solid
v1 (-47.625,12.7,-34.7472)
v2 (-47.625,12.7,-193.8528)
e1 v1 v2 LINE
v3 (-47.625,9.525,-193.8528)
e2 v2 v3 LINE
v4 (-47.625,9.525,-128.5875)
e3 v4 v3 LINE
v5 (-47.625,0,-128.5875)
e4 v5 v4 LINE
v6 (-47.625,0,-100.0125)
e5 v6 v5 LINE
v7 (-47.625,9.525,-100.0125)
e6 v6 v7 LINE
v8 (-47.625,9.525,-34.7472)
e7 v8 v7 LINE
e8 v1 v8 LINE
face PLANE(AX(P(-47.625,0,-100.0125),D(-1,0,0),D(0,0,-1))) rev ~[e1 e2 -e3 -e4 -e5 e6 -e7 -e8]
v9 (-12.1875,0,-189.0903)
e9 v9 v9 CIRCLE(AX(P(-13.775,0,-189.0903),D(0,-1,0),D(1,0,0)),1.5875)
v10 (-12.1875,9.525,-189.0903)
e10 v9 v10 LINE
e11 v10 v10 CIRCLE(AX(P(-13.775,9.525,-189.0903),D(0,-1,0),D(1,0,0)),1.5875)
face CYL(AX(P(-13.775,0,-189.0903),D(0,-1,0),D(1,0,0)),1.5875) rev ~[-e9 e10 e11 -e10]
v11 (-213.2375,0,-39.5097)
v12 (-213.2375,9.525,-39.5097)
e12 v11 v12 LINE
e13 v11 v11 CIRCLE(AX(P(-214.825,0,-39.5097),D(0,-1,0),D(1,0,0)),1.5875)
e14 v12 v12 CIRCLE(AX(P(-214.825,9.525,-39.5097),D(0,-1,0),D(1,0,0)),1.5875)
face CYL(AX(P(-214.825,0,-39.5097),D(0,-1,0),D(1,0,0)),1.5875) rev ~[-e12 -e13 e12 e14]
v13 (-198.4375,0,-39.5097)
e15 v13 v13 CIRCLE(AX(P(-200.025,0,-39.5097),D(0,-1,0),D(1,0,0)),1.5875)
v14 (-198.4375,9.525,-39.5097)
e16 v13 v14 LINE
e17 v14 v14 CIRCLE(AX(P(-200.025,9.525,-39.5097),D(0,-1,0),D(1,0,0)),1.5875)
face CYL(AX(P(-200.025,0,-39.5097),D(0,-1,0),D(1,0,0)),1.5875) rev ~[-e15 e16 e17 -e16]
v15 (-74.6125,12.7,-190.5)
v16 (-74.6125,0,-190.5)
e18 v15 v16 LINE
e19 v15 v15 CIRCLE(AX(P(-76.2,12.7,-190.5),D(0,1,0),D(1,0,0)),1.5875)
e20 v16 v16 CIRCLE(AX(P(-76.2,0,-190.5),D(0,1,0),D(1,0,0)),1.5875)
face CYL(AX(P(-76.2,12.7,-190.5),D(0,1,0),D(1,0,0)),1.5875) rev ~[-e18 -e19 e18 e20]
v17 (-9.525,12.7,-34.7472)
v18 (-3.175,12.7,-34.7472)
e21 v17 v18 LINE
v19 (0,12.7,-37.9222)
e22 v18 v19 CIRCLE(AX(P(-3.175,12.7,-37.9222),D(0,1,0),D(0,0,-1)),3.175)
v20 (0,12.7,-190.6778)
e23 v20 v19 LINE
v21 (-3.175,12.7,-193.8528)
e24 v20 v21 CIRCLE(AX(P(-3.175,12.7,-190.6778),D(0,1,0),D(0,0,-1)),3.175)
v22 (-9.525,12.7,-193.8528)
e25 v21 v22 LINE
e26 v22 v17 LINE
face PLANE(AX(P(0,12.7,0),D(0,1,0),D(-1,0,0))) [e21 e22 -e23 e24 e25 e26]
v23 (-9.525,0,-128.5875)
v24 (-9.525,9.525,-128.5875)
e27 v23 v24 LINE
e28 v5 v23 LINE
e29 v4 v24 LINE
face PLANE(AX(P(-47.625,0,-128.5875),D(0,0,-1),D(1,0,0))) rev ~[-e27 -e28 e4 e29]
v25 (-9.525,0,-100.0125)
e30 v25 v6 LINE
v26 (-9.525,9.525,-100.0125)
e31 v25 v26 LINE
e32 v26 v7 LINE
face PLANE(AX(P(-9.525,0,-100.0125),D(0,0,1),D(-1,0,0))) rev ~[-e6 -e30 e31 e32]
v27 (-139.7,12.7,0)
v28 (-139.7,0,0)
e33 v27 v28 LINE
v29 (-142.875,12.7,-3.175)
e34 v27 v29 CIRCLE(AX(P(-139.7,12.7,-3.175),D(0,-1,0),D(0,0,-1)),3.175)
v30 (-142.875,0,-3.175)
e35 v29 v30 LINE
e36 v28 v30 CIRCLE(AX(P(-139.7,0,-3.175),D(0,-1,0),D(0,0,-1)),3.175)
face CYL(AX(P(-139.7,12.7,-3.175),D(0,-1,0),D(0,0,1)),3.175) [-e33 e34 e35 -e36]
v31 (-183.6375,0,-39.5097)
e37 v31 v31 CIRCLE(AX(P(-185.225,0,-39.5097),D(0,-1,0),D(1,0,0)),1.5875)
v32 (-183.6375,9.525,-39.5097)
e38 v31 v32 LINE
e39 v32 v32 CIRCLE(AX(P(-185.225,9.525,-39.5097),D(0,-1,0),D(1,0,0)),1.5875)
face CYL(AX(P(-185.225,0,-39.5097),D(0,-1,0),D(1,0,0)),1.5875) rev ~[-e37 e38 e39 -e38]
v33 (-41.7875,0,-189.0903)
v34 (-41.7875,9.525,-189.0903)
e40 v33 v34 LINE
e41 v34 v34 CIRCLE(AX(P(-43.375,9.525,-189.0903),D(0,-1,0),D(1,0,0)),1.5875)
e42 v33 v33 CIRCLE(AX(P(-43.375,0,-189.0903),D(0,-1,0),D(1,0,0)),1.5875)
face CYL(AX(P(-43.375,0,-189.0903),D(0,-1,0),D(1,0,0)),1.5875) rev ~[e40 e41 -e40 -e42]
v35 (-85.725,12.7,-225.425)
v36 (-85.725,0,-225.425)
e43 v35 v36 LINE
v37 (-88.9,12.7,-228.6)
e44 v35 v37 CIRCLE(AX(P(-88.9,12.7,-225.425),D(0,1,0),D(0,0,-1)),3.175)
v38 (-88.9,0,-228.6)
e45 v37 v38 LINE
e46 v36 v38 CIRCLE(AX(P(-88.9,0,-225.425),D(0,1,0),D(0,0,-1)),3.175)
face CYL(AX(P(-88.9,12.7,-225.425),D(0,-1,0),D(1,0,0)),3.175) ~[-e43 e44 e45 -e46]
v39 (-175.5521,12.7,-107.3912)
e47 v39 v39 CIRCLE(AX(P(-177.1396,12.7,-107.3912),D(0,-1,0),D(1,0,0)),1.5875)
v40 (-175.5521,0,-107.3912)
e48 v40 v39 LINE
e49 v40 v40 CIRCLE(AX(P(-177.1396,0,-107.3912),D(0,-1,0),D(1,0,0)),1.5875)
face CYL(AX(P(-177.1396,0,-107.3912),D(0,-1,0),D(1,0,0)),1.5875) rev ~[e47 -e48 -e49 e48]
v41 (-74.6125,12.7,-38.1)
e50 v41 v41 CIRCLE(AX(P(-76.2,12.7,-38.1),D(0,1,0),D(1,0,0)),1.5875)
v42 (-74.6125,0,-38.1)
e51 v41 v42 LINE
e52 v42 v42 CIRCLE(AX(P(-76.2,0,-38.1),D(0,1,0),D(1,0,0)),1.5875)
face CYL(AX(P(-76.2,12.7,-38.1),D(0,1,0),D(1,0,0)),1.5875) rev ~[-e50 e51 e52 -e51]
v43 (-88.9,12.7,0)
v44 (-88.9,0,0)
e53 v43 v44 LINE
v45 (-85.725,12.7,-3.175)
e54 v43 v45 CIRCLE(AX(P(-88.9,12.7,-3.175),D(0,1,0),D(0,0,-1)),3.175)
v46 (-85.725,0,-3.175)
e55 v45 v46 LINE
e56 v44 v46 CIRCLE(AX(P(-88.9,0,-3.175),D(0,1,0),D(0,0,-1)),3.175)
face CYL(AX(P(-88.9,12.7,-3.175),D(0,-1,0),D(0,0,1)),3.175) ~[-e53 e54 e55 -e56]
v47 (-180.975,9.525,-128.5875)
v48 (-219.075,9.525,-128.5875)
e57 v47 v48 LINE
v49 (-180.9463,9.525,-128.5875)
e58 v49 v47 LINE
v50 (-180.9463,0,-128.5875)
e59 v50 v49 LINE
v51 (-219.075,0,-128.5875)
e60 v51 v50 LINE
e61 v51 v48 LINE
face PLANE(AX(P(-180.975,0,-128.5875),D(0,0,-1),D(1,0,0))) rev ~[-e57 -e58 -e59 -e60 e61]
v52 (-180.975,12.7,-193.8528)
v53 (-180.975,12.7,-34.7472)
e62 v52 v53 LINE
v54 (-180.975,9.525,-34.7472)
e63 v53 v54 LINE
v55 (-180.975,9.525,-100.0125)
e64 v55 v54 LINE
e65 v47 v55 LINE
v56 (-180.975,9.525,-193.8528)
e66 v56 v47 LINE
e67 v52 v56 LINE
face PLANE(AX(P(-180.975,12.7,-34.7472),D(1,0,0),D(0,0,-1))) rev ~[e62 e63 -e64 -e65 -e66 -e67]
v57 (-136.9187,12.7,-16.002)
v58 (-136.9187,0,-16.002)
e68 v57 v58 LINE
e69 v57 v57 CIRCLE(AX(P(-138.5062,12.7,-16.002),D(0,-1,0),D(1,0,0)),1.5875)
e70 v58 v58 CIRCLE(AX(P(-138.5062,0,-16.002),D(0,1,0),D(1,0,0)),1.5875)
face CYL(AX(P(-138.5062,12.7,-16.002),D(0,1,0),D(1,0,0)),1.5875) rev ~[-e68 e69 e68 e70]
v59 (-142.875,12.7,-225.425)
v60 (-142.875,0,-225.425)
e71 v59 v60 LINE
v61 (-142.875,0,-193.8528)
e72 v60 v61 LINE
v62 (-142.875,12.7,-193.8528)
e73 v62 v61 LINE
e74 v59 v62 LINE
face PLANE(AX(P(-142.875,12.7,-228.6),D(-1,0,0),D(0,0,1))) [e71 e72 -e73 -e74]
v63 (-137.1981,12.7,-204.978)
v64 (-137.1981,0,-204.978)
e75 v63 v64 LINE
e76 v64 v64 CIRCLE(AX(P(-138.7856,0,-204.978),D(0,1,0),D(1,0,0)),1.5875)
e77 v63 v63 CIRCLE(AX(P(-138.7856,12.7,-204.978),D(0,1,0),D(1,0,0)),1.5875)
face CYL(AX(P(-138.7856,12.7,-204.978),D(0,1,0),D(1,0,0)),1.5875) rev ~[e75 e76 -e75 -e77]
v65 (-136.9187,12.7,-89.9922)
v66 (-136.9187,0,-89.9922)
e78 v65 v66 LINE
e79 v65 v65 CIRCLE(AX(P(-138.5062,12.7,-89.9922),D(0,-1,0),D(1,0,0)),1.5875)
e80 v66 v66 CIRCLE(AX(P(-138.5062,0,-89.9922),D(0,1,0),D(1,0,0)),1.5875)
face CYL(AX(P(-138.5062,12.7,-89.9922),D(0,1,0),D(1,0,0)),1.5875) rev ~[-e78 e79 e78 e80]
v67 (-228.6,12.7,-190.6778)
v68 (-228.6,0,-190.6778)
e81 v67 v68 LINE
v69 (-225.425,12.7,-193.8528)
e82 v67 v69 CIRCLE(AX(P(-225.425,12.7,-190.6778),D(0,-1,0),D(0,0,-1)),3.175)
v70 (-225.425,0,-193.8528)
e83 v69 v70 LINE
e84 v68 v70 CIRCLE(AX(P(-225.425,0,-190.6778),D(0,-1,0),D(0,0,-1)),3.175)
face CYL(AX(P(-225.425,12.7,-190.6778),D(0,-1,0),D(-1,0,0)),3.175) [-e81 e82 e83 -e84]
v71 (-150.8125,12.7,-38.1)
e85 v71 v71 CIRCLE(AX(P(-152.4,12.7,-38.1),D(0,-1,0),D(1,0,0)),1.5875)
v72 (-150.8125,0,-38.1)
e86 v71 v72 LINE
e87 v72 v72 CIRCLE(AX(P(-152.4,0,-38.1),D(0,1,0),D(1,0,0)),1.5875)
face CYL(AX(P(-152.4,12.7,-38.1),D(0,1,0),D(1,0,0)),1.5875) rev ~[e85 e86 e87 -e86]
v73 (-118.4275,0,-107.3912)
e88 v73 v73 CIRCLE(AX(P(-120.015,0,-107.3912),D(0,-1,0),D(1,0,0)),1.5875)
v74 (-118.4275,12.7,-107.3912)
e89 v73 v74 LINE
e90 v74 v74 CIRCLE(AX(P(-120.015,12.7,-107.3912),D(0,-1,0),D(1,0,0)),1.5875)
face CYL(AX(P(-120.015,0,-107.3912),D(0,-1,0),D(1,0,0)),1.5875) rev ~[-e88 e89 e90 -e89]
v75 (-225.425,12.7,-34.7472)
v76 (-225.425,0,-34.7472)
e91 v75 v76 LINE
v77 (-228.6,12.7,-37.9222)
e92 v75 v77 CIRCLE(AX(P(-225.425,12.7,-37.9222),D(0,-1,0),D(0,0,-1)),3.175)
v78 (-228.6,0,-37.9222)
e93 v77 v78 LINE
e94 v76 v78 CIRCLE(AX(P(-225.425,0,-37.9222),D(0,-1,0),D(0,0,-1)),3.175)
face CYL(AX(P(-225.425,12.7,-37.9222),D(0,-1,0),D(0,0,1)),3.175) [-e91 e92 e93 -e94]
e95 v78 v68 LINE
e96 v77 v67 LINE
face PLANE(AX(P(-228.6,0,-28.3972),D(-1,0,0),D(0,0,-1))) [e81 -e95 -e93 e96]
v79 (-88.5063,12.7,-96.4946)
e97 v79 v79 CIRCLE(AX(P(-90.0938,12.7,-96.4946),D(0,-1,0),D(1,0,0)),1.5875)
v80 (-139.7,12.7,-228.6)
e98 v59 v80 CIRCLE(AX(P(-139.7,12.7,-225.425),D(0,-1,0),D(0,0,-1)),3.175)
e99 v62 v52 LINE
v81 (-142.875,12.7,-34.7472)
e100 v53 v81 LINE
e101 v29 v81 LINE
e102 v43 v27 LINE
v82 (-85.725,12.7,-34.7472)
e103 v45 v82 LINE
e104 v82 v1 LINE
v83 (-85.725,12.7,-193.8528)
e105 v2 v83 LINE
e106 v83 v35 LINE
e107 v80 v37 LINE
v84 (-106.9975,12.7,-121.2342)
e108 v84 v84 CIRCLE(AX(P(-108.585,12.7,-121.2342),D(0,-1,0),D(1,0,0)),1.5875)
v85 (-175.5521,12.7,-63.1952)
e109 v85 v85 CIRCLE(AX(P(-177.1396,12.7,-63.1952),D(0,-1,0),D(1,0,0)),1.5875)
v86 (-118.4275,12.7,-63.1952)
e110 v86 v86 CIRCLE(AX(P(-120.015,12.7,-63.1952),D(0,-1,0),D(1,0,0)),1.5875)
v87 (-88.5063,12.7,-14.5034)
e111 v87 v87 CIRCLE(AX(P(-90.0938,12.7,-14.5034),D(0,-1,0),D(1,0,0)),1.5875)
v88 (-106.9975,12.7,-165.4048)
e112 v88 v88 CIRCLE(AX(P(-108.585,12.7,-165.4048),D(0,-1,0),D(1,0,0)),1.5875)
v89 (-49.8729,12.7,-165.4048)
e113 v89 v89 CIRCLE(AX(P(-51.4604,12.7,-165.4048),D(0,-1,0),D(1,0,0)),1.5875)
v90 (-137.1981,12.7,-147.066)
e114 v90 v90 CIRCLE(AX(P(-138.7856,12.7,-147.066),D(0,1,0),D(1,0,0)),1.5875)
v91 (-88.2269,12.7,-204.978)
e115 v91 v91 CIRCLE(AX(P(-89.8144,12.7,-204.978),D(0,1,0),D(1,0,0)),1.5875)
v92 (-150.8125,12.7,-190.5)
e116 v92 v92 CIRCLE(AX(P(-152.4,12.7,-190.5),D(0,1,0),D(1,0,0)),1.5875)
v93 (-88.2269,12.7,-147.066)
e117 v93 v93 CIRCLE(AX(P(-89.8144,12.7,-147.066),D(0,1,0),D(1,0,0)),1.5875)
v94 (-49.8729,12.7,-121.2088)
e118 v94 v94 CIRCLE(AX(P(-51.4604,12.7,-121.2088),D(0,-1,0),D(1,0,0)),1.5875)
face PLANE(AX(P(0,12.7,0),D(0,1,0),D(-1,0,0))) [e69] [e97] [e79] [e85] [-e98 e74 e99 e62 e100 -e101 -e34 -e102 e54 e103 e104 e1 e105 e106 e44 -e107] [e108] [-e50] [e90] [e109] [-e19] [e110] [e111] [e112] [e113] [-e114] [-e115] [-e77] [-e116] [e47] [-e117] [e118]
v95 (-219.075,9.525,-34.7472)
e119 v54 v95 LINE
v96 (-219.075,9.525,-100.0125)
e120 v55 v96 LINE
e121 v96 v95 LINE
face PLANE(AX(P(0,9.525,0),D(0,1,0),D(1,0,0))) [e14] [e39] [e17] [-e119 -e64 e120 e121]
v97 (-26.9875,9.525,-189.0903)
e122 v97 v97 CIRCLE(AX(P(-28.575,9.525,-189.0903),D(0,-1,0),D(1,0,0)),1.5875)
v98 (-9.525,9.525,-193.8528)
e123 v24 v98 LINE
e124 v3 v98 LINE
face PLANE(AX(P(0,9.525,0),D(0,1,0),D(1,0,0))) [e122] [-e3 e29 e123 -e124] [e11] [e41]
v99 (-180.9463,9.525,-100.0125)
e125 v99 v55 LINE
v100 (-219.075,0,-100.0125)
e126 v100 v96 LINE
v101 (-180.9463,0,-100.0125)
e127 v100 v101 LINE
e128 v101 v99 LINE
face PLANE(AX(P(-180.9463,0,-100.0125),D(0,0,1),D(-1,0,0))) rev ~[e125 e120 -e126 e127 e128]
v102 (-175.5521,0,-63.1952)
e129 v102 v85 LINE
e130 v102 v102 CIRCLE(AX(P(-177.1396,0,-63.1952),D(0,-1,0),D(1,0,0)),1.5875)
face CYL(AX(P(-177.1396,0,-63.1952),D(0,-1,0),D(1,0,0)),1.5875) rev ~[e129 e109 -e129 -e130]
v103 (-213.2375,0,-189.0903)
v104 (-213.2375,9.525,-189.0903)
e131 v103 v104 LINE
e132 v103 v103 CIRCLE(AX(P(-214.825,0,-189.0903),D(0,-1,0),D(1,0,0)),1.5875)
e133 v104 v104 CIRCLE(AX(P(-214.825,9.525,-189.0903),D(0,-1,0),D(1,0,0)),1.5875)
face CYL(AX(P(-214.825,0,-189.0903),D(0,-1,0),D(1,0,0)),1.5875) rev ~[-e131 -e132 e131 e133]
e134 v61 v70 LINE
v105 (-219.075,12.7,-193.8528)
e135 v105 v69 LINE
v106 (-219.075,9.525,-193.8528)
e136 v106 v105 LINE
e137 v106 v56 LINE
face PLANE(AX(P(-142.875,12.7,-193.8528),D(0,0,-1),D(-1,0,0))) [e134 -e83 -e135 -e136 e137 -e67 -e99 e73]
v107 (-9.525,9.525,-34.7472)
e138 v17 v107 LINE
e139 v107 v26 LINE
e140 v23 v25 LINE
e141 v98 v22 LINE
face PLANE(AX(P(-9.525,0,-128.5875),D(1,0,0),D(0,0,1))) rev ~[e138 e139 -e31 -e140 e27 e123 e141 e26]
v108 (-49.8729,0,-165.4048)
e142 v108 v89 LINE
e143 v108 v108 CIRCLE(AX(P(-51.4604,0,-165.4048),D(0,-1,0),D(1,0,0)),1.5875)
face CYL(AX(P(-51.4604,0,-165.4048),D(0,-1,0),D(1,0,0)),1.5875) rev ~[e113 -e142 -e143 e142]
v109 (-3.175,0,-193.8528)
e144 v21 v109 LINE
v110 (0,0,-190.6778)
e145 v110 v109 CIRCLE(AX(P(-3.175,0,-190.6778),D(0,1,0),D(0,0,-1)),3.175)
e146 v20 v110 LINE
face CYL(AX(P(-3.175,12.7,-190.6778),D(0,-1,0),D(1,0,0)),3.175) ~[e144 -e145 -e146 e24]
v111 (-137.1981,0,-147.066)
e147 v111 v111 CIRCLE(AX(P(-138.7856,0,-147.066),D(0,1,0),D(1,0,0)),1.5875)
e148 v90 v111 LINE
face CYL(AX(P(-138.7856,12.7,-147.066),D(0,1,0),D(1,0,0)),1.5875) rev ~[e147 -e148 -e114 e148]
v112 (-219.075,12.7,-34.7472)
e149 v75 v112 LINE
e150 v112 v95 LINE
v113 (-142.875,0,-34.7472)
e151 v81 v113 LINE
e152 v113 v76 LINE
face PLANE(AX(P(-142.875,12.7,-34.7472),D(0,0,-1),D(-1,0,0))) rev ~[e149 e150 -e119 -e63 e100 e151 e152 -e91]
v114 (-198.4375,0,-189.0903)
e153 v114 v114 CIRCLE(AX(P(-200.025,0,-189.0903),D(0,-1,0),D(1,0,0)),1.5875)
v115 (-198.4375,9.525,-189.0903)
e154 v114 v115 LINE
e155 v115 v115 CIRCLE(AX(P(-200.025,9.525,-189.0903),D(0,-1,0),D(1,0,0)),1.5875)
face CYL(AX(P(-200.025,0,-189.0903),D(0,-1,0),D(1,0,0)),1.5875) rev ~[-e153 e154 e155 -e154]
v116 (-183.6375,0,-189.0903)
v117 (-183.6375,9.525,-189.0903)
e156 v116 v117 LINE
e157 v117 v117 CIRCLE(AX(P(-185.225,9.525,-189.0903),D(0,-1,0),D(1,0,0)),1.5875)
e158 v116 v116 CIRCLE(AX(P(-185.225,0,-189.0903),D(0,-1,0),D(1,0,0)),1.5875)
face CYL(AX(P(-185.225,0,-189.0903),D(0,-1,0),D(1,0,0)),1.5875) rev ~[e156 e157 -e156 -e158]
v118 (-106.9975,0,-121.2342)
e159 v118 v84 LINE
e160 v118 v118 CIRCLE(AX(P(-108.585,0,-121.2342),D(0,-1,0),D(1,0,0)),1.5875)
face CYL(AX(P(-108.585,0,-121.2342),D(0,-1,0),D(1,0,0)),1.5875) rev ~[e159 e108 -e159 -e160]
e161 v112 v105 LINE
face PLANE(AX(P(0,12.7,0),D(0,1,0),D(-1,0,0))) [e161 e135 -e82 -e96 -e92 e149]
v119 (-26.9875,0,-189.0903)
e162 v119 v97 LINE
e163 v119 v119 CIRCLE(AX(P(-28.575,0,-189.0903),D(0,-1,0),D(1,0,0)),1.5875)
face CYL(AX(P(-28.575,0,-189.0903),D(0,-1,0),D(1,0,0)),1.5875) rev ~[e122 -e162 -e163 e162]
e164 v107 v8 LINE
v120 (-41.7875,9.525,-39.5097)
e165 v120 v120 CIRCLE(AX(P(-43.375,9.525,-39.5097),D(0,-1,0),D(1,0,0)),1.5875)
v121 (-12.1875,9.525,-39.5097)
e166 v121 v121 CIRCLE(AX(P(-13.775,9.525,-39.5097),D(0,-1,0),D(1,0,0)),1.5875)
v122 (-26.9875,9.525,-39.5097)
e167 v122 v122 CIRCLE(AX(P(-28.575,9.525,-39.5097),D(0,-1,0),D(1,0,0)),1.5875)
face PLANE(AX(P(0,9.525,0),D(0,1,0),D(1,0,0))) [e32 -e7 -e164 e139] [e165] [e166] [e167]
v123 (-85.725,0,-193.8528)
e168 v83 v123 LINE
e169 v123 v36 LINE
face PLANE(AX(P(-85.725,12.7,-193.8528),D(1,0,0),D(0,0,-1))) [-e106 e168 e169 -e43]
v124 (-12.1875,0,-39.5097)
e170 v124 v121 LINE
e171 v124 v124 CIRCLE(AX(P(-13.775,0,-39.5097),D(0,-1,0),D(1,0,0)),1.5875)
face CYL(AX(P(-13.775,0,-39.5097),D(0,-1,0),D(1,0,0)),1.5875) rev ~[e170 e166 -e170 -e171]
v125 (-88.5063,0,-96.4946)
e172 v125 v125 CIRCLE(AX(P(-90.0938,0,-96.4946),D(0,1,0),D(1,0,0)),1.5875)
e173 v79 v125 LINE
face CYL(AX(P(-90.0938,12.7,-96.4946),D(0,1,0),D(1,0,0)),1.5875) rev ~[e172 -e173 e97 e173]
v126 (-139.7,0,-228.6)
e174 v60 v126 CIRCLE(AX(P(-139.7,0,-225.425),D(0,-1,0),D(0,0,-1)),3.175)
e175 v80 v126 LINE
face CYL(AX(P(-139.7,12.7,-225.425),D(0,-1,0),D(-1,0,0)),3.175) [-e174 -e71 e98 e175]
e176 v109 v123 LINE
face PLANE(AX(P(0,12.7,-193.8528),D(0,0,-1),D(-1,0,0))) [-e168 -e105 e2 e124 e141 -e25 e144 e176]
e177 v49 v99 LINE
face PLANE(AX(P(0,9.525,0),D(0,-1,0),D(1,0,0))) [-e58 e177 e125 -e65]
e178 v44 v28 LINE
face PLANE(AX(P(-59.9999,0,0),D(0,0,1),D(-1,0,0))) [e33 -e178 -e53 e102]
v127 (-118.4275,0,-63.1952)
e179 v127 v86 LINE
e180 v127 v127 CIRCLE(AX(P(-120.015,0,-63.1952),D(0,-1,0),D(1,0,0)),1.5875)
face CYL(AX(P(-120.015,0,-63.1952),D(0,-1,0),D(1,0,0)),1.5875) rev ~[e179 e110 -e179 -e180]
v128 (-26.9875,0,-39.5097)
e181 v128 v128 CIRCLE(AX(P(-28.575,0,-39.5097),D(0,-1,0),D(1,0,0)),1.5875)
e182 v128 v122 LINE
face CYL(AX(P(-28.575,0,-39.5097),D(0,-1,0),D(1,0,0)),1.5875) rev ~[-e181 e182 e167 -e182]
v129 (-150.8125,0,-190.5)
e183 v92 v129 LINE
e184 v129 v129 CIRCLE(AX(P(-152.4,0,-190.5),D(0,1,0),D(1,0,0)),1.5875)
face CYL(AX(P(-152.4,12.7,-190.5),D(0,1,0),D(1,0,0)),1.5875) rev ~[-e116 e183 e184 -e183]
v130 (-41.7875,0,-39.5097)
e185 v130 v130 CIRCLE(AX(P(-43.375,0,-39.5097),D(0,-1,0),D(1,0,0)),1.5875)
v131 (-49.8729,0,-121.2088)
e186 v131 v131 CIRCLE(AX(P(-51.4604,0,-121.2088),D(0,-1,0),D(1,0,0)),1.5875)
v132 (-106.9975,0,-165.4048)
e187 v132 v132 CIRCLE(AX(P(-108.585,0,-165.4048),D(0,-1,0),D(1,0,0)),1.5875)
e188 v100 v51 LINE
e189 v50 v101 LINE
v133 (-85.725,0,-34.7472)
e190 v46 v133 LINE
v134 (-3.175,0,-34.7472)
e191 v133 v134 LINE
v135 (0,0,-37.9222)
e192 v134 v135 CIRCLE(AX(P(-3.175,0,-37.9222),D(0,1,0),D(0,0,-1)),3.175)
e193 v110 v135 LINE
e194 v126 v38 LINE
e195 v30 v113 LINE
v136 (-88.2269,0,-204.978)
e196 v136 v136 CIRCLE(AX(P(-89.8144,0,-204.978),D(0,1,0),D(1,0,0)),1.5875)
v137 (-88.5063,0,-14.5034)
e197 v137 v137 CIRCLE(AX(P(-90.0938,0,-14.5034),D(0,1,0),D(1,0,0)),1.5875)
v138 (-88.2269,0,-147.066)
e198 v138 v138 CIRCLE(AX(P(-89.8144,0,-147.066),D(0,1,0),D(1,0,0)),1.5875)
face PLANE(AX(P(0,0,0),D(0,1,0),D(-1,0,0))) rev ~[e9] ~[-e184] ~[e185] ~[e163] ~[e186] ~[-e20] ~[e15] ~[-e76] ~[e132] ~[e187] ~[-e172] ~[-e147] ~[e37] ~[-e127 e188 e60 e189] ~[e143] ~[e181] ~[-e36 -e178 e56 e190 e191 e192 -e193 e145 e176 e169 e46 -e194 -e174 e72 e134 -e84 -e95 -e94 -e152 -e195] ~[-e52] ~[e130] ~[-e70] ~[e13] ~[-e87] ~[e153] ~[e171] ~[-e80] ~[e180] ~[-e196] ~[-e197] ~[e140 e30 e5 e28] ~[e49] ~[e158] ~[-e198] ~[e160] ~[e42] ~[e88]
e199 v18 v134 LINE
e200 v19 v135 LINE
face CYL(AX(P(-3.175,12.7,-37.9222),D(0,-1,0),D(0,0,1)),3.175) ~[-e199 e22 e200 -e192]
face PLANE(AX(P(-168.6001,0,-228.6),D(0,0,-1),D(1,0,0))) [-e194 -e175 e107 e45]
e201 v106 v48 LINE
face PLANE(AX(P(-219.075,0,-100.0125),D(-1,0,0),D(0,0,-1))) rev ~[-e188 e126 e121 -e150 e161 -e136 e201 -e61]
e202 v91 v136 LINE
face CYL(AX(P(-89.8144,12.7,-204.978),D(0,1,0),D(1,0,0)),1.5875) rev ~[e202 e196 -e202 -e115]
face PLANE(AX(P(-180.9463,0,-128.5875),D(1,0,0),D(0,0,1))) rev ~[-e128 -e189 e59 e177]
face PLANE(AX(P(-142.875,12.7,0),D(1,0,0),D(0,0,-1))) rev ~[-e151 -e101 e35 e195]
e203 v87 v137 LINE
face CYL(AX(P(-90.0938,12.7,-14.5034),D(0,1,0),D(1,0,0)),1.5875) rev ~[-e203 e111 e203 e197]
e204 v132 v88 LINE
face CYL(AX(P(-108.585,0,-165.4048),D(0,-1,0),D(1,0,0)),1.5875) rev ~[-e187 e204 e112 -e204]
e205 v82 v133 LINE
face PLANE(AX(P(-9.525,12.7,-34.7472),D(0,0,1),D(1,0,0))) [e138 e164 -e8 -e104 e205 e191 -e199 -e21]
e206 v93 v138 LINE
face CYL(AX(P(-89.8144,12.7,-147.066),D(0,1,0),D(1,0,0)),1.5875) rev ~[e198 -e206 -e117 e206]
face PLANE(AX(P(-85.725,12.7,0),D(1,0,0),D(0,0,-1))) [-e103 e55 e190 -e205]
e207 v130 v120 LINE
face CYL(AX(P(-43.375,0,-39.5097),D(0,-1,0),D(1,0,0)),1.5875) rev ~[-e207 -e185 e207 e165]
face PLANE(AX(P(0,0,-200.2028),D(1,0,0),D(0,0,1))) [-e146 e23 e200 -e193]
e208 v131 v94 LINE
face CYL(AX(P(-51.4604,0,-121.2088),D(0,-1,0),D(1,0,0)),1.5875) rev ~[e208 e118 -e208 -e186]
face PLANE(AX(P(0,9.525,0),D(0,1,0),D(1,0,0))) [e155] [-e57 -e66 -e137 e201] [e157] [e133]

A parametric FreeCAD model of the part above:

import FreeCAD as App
import Part
import Sketcher
Q = App.Units.Quantity


def edges_at(feature, points):
    """Names of the edges that pass closest to the given points."""
    edges = feature.Shape.Edges
    near = lambda p: min(range(len(edges)), key=lambda i: edges[i].distToShape(Part.Vertex(*p))[0])
    return sorted({f"Edge{near(p) + 1}" for p in points})


def add_polygon(sketch, points):
    """Adds a closed chain of lines whose ends are joined by coincident constraints."""
    first, n = sketch.GeometryCount, len(points)
    for a, b in zip(points, points[1:] + points[:1]):
        sketch.addGeometry(Part.LineSegment(App.Vector(*a, 0), App.Vector(*b, 0)), False)
    for i in range(n):
        sketch.addConstraint(Sketcher.Constraint("Coincident", first + i, 2, first + (i + 1) % n, 1))

doc = App.newDocument("Part")
body = doc.addObject("PartDesign::Body", "Body")

# Sketch on XZ plane
sketch1 = body.newObject("Sketcher::SketchObject", "Sketch")
sketch1.AttachmentSupport = (doc.getObject("XZ_Plane"), [""])
sketch1.MapMode = "FlatFace"
add_polygon(sketch1, [(-169, 0), (-60, 0), (-60, -28), (0, -28), (0, -200), (-60, -200), (-60, -229), (-169, -229), (-169, -200), (-229, -200), (-229, -28), (-169, -28)])  # lines 0-11
sketch1.addConstraint(Sketcher.Constraint("Horizontal", 0))
sketch1.addConstraint(Sketcher.Constraint("Vertical", 1))
sketch1.addConstraint(Sketcher.Constraint("Horizontal", 2))
sketch1.addConstraint(Sketcher.Constraint("Vertical", 3))
sketch1.addConstraint(Sketcher.Constraint("Horizontal", 4))
sketch1.addConstraint(Sketcher.Constraint("Vertical", 5))
sketch1.addConstraint(Sketcher.Constraint("Horizontal", 6))
sketch1.addConstraint(Sketcher.Constraint("Vertical", 7))
sketch1.addConstraint(Sketcher.Constraint("Horizontal", 8))
sketch1.addConstraint(Sketcher.Constraint("Vertical", 9))
sketch1.addConstraint(Sketcher.Constraint("Horizontal", 10))
sketch1.addConstraint(Sketcher.Constraint("Vertical", 11))
sketch1.addConstraint(Sketcher.Constraint("PointOnObject", 0, 2, -1))
sketch1.addConstraint(Sketcher.Constraint("PointOnObject", 2, 2, -2))
sketch1.addConstraint(Sketcher.Constraint("Horizontal", 4, 2, 7, 2))
sketch1.addConstraint(Sketcher.Constraint("Horizontal", 2, 2, 9, 2))
sketch1.addConstraint(Sketcher.Constraint("Vertical", 1, 2, 4, 2))
sketch1.addConstraint(Sketcher.Constraint("Vertical", 7, 2, 10, 2))
sketch1.addConstraint(Sketcher.Constraint("Equal", 4, 8))
sketch1.addConstraint(Sketcher.Constraint("Equal", 1, 5))
sketch1.addConstraint(Sketcher.Constraint("DistanceY", 5, 2, -1, 1, Q("9 in")))
sketch1.addConstraint(Sketcher.Constraint("DistanceX", 8, 2, -1, 1, Q("9 in")))
sketch1.addConstraint(Sketcher.Constraint("DistanceY", 1, 2, 1, 1, Q("1.118 in")))
sketch1.addConstraint(Sketcher.Constraint("DistanceX", 2, 1, 2, 2, Q("2.3622 in")))
pad1 = body.newObject("PartDesign::Pad", "Pad")
pad1.Profile = sketch1
pad1.Length = Q("0.5 in")
pad1.Reversed = True

# Sketch on XZ plane
sketch2 = body.newObject("Sketcher::SketchObject", "Sketch001")
sketch2.AttachmentSupport = (doc.getObject("XZ_Plane"), [""])
sketch2.MapMode = "FlatFace"
sketch2.AttachmentOffset = App.Placement(App.Vector(0, 0, -0.5 * 25.4), App.Rotation())
add_polygon(sketch2, [(-219.1, -44.3), (-219.1, -34.7), (-181, -34.7), (-181, -44.3)])  # lines 0-3
sketch2.addGeometry(Part.Circle(App.Vector(-214.8, -39.5, 0), App.Vector(0, 0, 1), 1.6), False)  # 4
sketch2.addGeometry(Part.Circle(App.Vector(-200, -39.5, 0), App.Vector(0, 0, 1), 1.6), False)  # 5
sketch2.addGeometry(Part.Circle(App.Vector(-185.2, -39.5, 0), App.Vector(0, 0, 1), 1.6), False)  # 6
add_polygon(sketch2, [(-47.6, -34.7), (-9.5, -34.7), (-9.5, -44.3), (-47.6, -44.3)])  # lines 7-10
sketch2.addGeometry(Part.Circle(App.Vector(-43.4, -39.5, 0), App.Vector(0, 0, 1), 1.6), False)  # 11
sketch2.addGeometry(Part.Circle(App.Vector(-28.6, -39.5, 0), App.Vector(0, 0, 1), 1.6), False)  # 12
sketch2.addGeometry(Part.Circle(App.Vector(-13.8, -39.5, 0), App.Vector(0, 0, 1), 1.6), False)  # 13
add_polygon(sketch2, [(-181, -193.9), (-219.1, -193.9), (-219.1, -184.3), (-181, -184.3)])  # lines 14-17
sketch2.addGeometry(Part.Circle(App.Vector(-214.8, -189.1, 0), App.Vector(0, 0, 1), 1.6), False)  # 18
sketch2.addGeometry(Part.Circle(App.Vector(-200, -189.1, 0), App.Vector(0, 0, 1), 1.6), False)  # 19
sketch2.addGeometry(Part.Circle(App.Vector(-185.2, -189.1, 0), App.Vector(0, 0, 1), 1.6), False)  # 20
add_polygon(sketch2, [(-9.5, -193.9), (-47.6, -193.9), (-47.6, -184.3), (-9.5, -184.3)])  # lines 21-24
sketch2.addGeometry(Part.Circle(App.Vector(-43.4, -189.1, 0), App.Vector(0, 0, 1), 1.6), False)  # 25
sketch2.addGeometry(Part.Circle(App.Vector(-28.6, -189.1, 0), App.Vector(0, 0, 1), 1.6), False)  # 26
sketch2.addGeometry(Part.Circle(App.Vector(-13.8, -189.1, 0), App.Vector(0, 0, 1), 1.6), False)  # 27
sketch2.addConstraint(Sketcher.Constraint("Vertical", 0))
sketch2.addConstraint(Sketcher.Constraint("Horizontal", 1))
sketch2.addConstraint(Sketcher.Constraint("Vertical", 2))
sketch2.addConstraint(Sketcher.Constraint("Horizontal", 3))
sketch2.addConstraint(Sketcher.Constraint("Horizontal", 7))
sketch2.addConstraint(Sketcher.Constraint("Vertical", 8))
sketch2.addConstraint(Sketcher.Constraint("Horizontal", 9))
sketch2.addConstraint(Sketcher.Constraint("Vertical", 10))
sketch2.addConstraint(Sketcher.Constraint("Horizontal", 14))
sketch2.addConstraint(Sketcher.Constraint("Vertical", 15))
sketch2.addConstraint(Sketcher.Constraint("Horizontal", 16))
sketch2.addConstraint(Sketcher.Constraint("Vertical", 17))
sketch2.addConstraint(Sketcher.Constraint("Horizontal", 21))
sketch2.addConstraint(Sketcher.Constraint("Vertical", 22))
sketch2.addConstraint(Sketcher.Constraint("Horizontal", 23))
sketch2.addConstraint(Sketcher.Constraint("Vertical", 24))
sketch2.addConstraint(Sketcher.Constraint("Equal", 4, 5))
sketch2.addConstraint(Sketcher.Constraint("Equal", 5, 6))
sketch2.addConstraint(Sketcher.Constraint("Equal", 6, 11))
sketch2.addConstraint(Sketcher.Constraint("Equal", 11, 12))
sketch2.addConstraint(Sketcher.Constraint("Equal", 12, 13))
sketch2.addConstraint(Sketcher.Constraint("Equal", 13, 18))
sketch2.addConstraint(Sketcher.Constraint("Equal", 18, 19))
sketch2.addConstraint(Sketcher.Constraint("Equal", 19, 20))
sketch2.addConstraint(Sketcher.Constraint("Equal", 20, 25))
sketch2.addConstraint(Sketcher.Constraint("Equal", 25, 26))
sketch2.addConstraint(Sketcher.Constraint("Equal", 26, 27))
sketch2.addConstraint(Sketcher.Constraint("Horizontal", 4, 3, 5, 3))
sketch2.addConstraint(Sketcher.Constraint("Horizontal", 5, 3, 6, 3))
sketch2.addConstraint(Sketcher.Constraint("Horizontal", 6, 3, 11, 3))
sketch2.addConstraint(Sketcher.Constraint("Horizontal", 11, 3, 12, 3))
sketch2.addConstraint(Sketcher.Constraint("Horizontal", 12, 3, 13, 3))
sketch2.addConstraint(Sketcher.Constraint("Horizontal", 18, 3, 19, 3))
sketch2.addConstraint(Sketcher.Constraint("Horizontal", 19, 3, 20, 3))
sketch2.addConstraint(Sketcher.Constraint("Horizontal", 20, 3, 25, 3))
sketch2.addConstraint(Sketcher.Constraint("Horizontal", 25, 3, 26, 3))
sketch2.addConstraint(Sketcher.Constraint("Horizontal", 26, 3, 27, 3))
sketch2.addConstraint(Sketcher.Constraint("Horizontal", 1, 2, 7, 2))
sketch2.addConstraint(Sketcher.Constraint("Horizontal", 3, 2, 8, 2))
sketch2.addConstraint(Sketcher.Constraint("Horizontal", 17, 2, 21, 2))
sketch2.addConstraint(Sketcher.Constraint("Horizontal", 16, 2, 22, 2))
sketch2.addConstraint(Sketcher.Constraint("Vertical", 4, 3, 18, 3))
sketch2.addConstraint(Sketcher.Constraint("Vertical", 5, 3, 19, 3))
sketch2.addConstraint(Sketcher.Constraint("Vertical", 6, 3, 20, 3))
sketch2.addConstraint(Sketcher.Constraint("Vertical", 11, 3, 25, 3))
sketch2.addConstraint(Sketcher.Constraint("Vertical", 12, 3, 26, 3))
sketch2.addConstraint(Sketcher.Constraint("Vertical", 13, 3, 27, 3))
sketch2.addConstraint(Sketcher.Constraint("Vertical", 3, 2, 14, 2))
sketch2.addConstraint(Sketcher.Constraint("Vertical", 2, 2, 16, 2))
sketch2.addConstraint(Sketcher.Constraint("Vertical", 10, 2, 21, 2))
sketch2.addConstraint(Sketcher.Constraint("Vertical", 8, 2, 23, 2))
sketch2.addConstraint(Sketcher.Constraint("Equal", 3, 7))
sketch2.addConstraint(Sketcher.Constraint("Equal", 10, 15))
sketch2.addConstraint(Sketcher.Constraint("Diameter", 4, Q("0.125 in")))
sketch2.addConstraint(Sketcher.Constraint("DistanceX", 1, 1, 1, 2, Q("1.5 in")))
sketch2.addConstraint(Sketcher.Constraint("DistanceY", 0, 1, 0, 2, Q("0.375 in")))
sketch2.addConstraint(Sketcher.Constraint("DistanceX", 7, 2, -1, 1, Q("0.375 in")))
sketch2.addConstraint(Sketcher.Constraint("DistanceX", 4, 3, 5, 3, 14.8))
sketch2.addConstraint(Sketcher.Constraint("DistanceX", 5, 3, 6, 3, 14.8))
sketch2.addConstraint(Sketcher.Constraint("DistanceX", 4, 3, 11, 3, Q("6.75 in")))
sketch2.addConstraint(Sketcher.Constraint("DistanceX", 11, 3, 12, 3, 14.8))
sketch2.addConstraint(Sketcher.Constraint("DistanceX", 12, 3, 13, 3, 14.8))
sketch2.addConstraint(Sketcher.Constraint("DistanceX", 0, 2, 5, 3, Q("0.75 in")))
sketch2.addConstraint(Sketcher.Constraint("DistanceX", 12, 3, 7, 2, Q("0.75 in")))
sketch2.addConstraint(Sketcher.Constraint("DistanceY", 0, 2, -1, 1, Q("1.368 in")))
sketch2.addConstraint(Sketcher.Constraint("DistanceY", 14, 2, -1, 1, Q("7.632 in")))
sketch2.addConstraint(Sketcher.Constraint("DistanceY", 18, 3, 4, 3, Q("5.889 in")))
sketch2.addConstraint(Sketcher.Constraint("DistanceY", 4, 3, 0, 2, Q("0.1875 in")))
pocket1 = body.newObject("PartDesign::Pocket", "Pocket")
pocket1.Profile = sketch2
pocket1.Length = Q("0.031248 in")
pocket1.Reversed = True

# Sketch on XZ plane
sketch3 = body.newObject("Sketcher::SketchObject", "Sketch002")
sketch3.AttachmentSupport = (doc.getObject("XZ_Plane"), [""])
sketch3.MapMode = "FlatFace"
sketch3.addGeometry(Part.Circle(App.Vector(-13.8, -39.5, 0), App.Vector(0, 0, 1), 1.6), False)
sketch3.addGeometry(Part.Circle(App.Vector(-28.6, -39.5, 0), App.Vector(0, 0, 1), 1.6), False)
sketch3.addGeometry(Part.Circle(App.Vector(-43.4, -39.5, 0), App.Vector(0, 0, 1), 1.6), False)
sketch3.addGeometry(Part.Circle(App.Vector(-13.8, -189.1, 0), App.Vector(0, 0, 1), 1.6), False)
sketch3.addGeometry(Part.Circle(App.Vector(-28.6, -189.1, 0), App.Vector(0, 0, 1), 1.6), False)
sketch3.addGeometry(Part.Circle(App.Vector(-43.4, -189.1, 0), App.Vector(0, 0, 1), 1.6), False)
sketch3.addGeometry(Part.Circle(App.Vector(-185.2, -189.1, 0), App.Vector(0, 0, 1), 1.6), False)
sketch3.addGeometry(Part.Circle(App.Vector(-200, -189.1, 0), App.Vector(0, 0, 1), 1.6), False)
sketch3.addGeometry(Part.Circle(App.Vector(-214.8, -189.1, 0), App.Vector(0, 0, 1), 1.6), False)
sketch3.addGeometry(Part.Circle(App.Vector(-214.8, -39.5, 0), App.Vector(0, 0, 1), 1.6), False)
sketch3.addGeometry(Part.Circle(App.Vector(-200, -39.5, 0), App.Vector(0, 0, 1), 1.6), False)
sketch3.addGeometry(Part.Circle(App.Vector(-185.2, -39.5, 0), App.Vector(0, 0, 1), 1.6), False)
sketch3.addConstraint(Sketcher.Constraint("Equal", 0, 1))
sketch3.addConstraint(Sketcher.Constraint("Equal", 1, 2))
sketch3.addConstraint(Sketcher.Constraint("Equal", 2, 3))
sketch3.addConstraint(Sketcher.Constraint("Equal", 3, 4))
sketch3.addConstraint(Sketcher.Constraint("Equal", 4, 5))
sketch3.addConstraint(Sketcher.Constraint("Equal", 5, 6))
sketch3.addConstraint(Sketcher.Constraint("Equal", 6, 7))
sketch3.addConstraint(Sketcher.Constraint("Equal", 7, 8))
sketch3.addConstraint(Sketcher.Constraint("Equal", 8, 9))
sketch3.addConstraint(Sketcher.Constraint("Equal", 9, 10))
sketch3.addConstraint(Sketcher.Constraint("Equal", 10, 11))
sketch3.addConstraint(Sketcher.Constraint("Horizontal", 0, 3, 1, 3))
sketch3.addConstraint(Sketcher.Constraint("Horizontal", 1, 3, 2, 3))
sketch3.addConstraint(Sketcher.Constraint("Horizontal", 3, 3, 4, 3))
sketch3.addConstraint(Sketcher.Constraint("Horizontal", 4, 3, 5, 3))
sketch3.addConstraint(Sketcher.Constraint("Horizontal", 5, 3, 6, 3))
sketch3.addConstraint(Sketcher.Constraint("Horizontal", 6, 3, 7, 3))
sketch3.addConstraint(Sketcher.Constraint("Horizontal", 7, 3, 8, 3))
sketch3.addConstraint(Sketcher.Constraint("Horizontal", 2, 3, 9, 3))
sketch3.addConstraint(Sketcher.Constraint("Horizontal", 9, 3, 10, 3))
sketch3.addConstraint(Sketcher.Constraint("Horizontal", 10, 3, 11, 3))
sketch3.addConstraint(Sketcher.Constraint("Vertical", 0, 3, 3, 3))
sketch3.addConstraint(Sketcher.Constraint("Vertical", 1, 3, 4, 3))
sketch3.addConstraint(Sketcher.Constraint("Vertical", 2, 3, 5, 3))
sketch3.addConstraint(Sketcher.Constraint("Vertical", 8, 3, 9, 3))
sketch3.addConstraint(Sketcher.Constraint("Vertical", 7, 3, 10, 3))
sketch3.addConstraint(Sketcher.Constraint("Vertical", 6, 3, 11, 3))
sketch3.addConstraint(Sketcher.Constraint("Diameter", 0, Q("0.125 in")))
sketch3.addConstraint(Sketcher.Constraint("DistanceX", 6, 3, 3, 3, Q("6.75 in")))
sketch3.addConstraint(Sketcher.Constraint("DistanceX", 7, 3, 4, 3, Q("6.75 in")))
sketch3.addConstraint(Sketcher.Constraint("DistanceX", 8, 3, 5, 3, Q("6.75 in")))
sketch3.addConstraint(Sketcher.Constraint("DistanceX", 1, 3, -1, 1, Q("1.125 in")))
sketch3.addConstraint(Sketcher.Constraint("DistanceY", 3, 3, 0, 3, Q("5.889 in")))
sketch3.addConstraint(Sketcher.Constraint("DistanceY", 0, 3, -1, 1, Q("1.5555 in")))
sketch3.addConstraint(Sketcher.Constraint("DistanceX", 0, 3, -1, 1, 13.775))
sketch3.addConstraint(Sketcher.Constraint("DistanceX", 2, 3, -1, 1, 43.375))
pocket2 = body.newObject("PartDesign::Pocket", "Pocket001")
pocket2.Profile = sketch3
pocket2.Length = Q("0.5 in")

# Sketch on XZ plane
sketch4 = body.newObject("Sketcher::SketchObject", "Sketch003")
sketch4.AttachmentSupport = (doc.getObject("XZ_Plane"), [""])
sketch4.MapMode = "FlatFace"
sketch4.AttachmentOffset = App.Placement(App.Vector(0, 0, -0.5 * 25.4), App.Rotation())
add_polygon(sketch4, [(-219, -194), (-219, -35), (-181, -35), (-181, -194)])  # lines 0-3
add_polygon(sketch4, [(-10, -194), (-48, -194), (-48, -35), (-10, -35)])  # lines 4-7
sketch4.addConstraint(Sketcher.Constraint("Vertical", 0))
sketch4.addConstraint(Sketcher.Constraint("Horizontal", 1))
sketch4.addConstraint(Sketcher.Constraint("Vertical", 2))
sketch4.addConstraint(Sketcher.Constraint("Horizontal", 3))
sketch4.addConstraint(Sketcher.Constraint("Horizontal", 4))
sketch4.addConstraint(Sketcher.Constraint("Vertical", 5))
sketch4.addConstraint(Sketcher.Constraint("Horizontal", 6))
sketch4.addConstraint(Sketcher.Constraint("Vertical", 7))
sketch4.addConstraint(Sketcher.Constraint("Horizontal", 3, 2, 4, 2))
sketch4.addConstraint(Sketcher.Constraint("Horizontal", 1, 2, 5, 2))
sketch4.addConstraint(Sketcher.Constraint("Equal", 3, 4))
sketch4.addConstraint(Sketcher.Constraint("DistanceX", 1, 1, 1, 2, Q("1.5 in")))
sketch4.addConstraint(Sketcher.Constraint("DistanceY", 0, 1, 0, 2, Q("6.264 in")))
sketch4.addConstraint(Sketcher.Constraint("DistanceX", 2, 2, 4, 2, Q("5.25 in")))
sketch4.addConstraint(Sketcher.Constraint("DistanceX", 0, 2, -1, 1, Q("8.625 in")))
sketch4.addConstraint(Sketcher.Constraint("DistanceY", 0, 2, -1, 1, Q("1.368 in")))
pocket3 = body.newObject("PartDesign::Pocket", "Pocket002")
pocket3.Profile = sketch4
pocket3.Length = Q("0.125 in")
pocket3.Reversed = True

# Sketch on XZ plane
sketch5 = body.newObject("Sketcher::SketchObject", "Sketch004")
sketch5.AttachmentSupport = (doc.getObject("XZ_Plane"), [""])
sketch5.MapMode = "FlatFace"
sketch5.AttachmentOffset = App.Placement(App.Vector(0, 0, -0.5 * 25.4), App.Rotation())
sketch5.addGeometry(Part.Circle(App.Vector(-152.4, -38.1, 0), App.Vector(0, 0, 1), 1.6), False)
sketch5.addGeometry(Part.Circle(App.Vector(-76.2, -38.1, 0), App.Vector(0, 0, 1), 1.6), False)
sketch5.addGeometry(Part.Circle(App.Vector(-152.4, -190.5, 0), App.Vector(0, 0, 1), 1.6), False)
sketch5.addGeometry(Part.Circle(App.Vector(-76.2, -190.5, 0), App.Vector(0, 0, 1), 1.6), False)
sketch5.addConstraint(Sketcher.Constraint("Equal", 0, 1))
sketch5.addConstraint(Sketcher.Constraint("Equal", 1, 2))
sketch5.addConstraint(Sketcher.Constraint("Equal", 2, 3))
sketch5.addConstraint(Sketcher.Constraint("Horizontal", 0, 3, 1, 3))
sketch5.addConstraint(Sketcher.Constraint("Horizontal", 2, 3, 3, 3))
sketch5.addConstraint(Sketcher.Constraint("Vertical", 0, 3, 2, 3))
sketch5.addConstraint(Sketcher.Constraint("Vertical", 1, 3, 3, 3))
sketch5.addConstraint(Sketcher.Constraint("Diameter", 0, Q("0.125 in")))
sketch5.addConstraint(Sketcher.Constraint("DistanceX", 1, 3, -1, 1, Q("3 in")))
sketch5.addConstraint(Sketcher.Constraint("DistanceX", 0, 3, 1, 3, Q("3 in")))
sketch5.addConstraint(Sketcher.Constraint("DistanceY", 0, 3, -1, 1, Q("1.5 in")))
sketch5.addConstraint(Sketcher.Constraint("DistanceY", 2, 3, 0, 3, Q("6 in")))
pocket4 = body.newObject("PartDesign::Pocket", "Pocket003")
pocket4.Profile = sketch5
pocket4.Length = Q("0.5 in")
pocket4.Reversed = True

# Sketch on XZ plane
sketch6 = body.newObject("Sketcher::SketchObject", "Sketch005")
sketch6.AttachmentSupport = (doc.getObject("XZ_Plane"), [""])
sketch6.MapMode = "FlatFace"
sketch6.AttachmentOffset = App.Placement(App.Vector(0, 0, -0.5 * 25.4), App.Rotation())
add_polygon(sketch6, [(0, -194), (0, -229), (-86, -229), (-86, -194)])  # lines 0-3
add_polygon(sketch6, [(-143, -194), (-143, -229), (-229, -229), (-229, -194)])  # lines 4-7
add_polygon(sketch6, [(0, -35), (-86, -35), (-86, 0), (0, 0)])  # lines 8-11
add_polygon(sketch6, [(-143, -35), (-229, -35), (-229, 0), (-143, 0)])  # lines 12-15
sketch6.addConstraint(Sketcher.Constraint("Vertical", 0))
sketch6.addConstraint(Sketcher.Constraint("Horizontal", 1))
sketch6.addConstraint(Sketcher.Constraint("Vertical", 2))
sketch6.addConstraint(Sketcher.Constraint("Horizontal", 3))
sketch6.addConstraint(Sketcher.Constraint("Vertical", 4))
sketch6.addConstraint(Sketcher.Constraint("Horizontal", 5))
sketch6.addConstraint(Sketcher.Constraint("Vertical", 6))
sketch6.addConstraint(Sketcher.Constraint("Horizontal", 7))
sketch6.addConstraint(Sketcher.Constraint("Horizontal", 8))
sketch6.addConstraint(Sketcher.Constraint("Vertical", 9))
sketch6.addConstraint(Sketcher.Constraint("Horizontal", 10))
sketch6.addConstraint(Sketcher.Constraint("Vertical", 11))
sketch6.addConstraint(Sketcher.Constraint("Horizontal", 12))
sketch6.addConstraint(Sketcher.Constraint("Vertical", 13))
sketch6.addConstraint(Sketcher.Constraint("Horizontal", 14))
sketch6.addConstraint(Sketcher.Constraint("Vertical", 15))
sketch6.addConstraint(Sketcher.Constraint("Coincident", 10, 2, -1, 1))
sketch6.addConstraint(Sketcher.Constraint("PointOnObject", 0, 2, -2))
sketch6.addConstraint(Sketcher.Constraint("PointOnObject", 13, 2, -1))
sketch6.addConstraint(Sketcher.Constraint("Horizontal", 1, 2, 4, 2))
sketch6.addConstraint(Sketcher.Constraint("Horizontal", 3, 2, 6, 2))
sketch6.addConstraint(Sketcher.Constraint("Horizontal", 11, 2, 12, 2))
sketch6.addConstraint(Sketcher.Constraint("Vertical", 2, 2, 8, 2))
sketch6.addConstraint(Sketcher.Constraint("Vertical", 6, 2, 12, 2))
sketch6.addConstraint(Sketcher.Constraint("Vertical", 7, 2, 14, 2))
sketch6.addConstraint(Sketcher.Constraint("Equal", 3, 5))
sketch6.addConstraint(Sketcher.Constraint("Equal", 6, 9))
sketch6.addConstraint(Sketcher.Constraint("DistanceY", 0, 2, 0, 1, Q("1.368 in")))
sketch6.addConstraint(Sketcher.Constraint("DistanceY", 0, 2, -1, 1, Q("9 in")))
sketch6.addConstraint(Sketcher.Constraint("DistanceX", 5, 2, -1, 1, Q("9 in")))
sketch6.addConstraint(Sketcher.Constraint("DistanceX", 1, 2, 1, 1, Q("3.375 in")))
pocket5 = body.newObject("PartDesign::Pocket", "Pocket004")
pocket5.Profile = sketch6
pocket5.Length = Q("1 in")
pocket5.Reversed = True

# Sketch on XZ plane
sketch7 = body.newObject("Sketcher::SketchObject", "Sketch006")
sketch7.AttachmentSupport = (doc.getObject("XZ_Plane"), [""])
sketch7.MapMode = "FlatFace"
sketch7.AttachmentOffset = App.Placement(App.Vector(0, 0, -0.5 * 25.4), App.Rotation())
sketch7.addGeometry(Part.Circle(App.Vector(-138.5, -16, 0), App.Vector(0, 0, 1), 1.6), False)
sketch7.addGeometry(Part.Circle(App.Vector(-90.1, -14.5, 0), App.Vector(0, 0, 1), 1.6), False)
sketch7.addGeometry(Part.Circle(App.Vector(-138.5, -90, 0), App.Vector(0, 0, 1), 1.6), False)
sketch7.addGeometry(Part.Circle(App.Vector(-90.1, -96.5, 0), App.Vector(0, 0, 1), 1.6), False)
sketch7.addConstraint(Sketcher.Constraint("Equal", 0, 1))
sketch7.addConstraint(Sketcher.Constraint("Equal", 1, 2))
sketch7.addConstraint(Sketcher.Constraint("Equal", 2, 3))
sketch7.addConstraint(Sketcher.Constraint("Vertical", 0, 3, 2, 3))
sketch7.addConstraint(Sketcher.Constraint("Vertical", 1, 3, 3, 3))
sketch7.addConstraint(Sketcher.Constraint("Diameter", 0, Q("0.125 in")))
sketch7.addConstraint(Sketcher.Constraint("DistanceY", 0, 3, -1, 1, Q("0.63 in")))
sketch7.addConstraint(Sketcher.Constraint("DistanceY", 1, 3, -1, 1, Q("0.571 in")))
sketch7.addConstraint(Sketcher.Constraint("DistanceY", 2, 3, -1, 1, Q("3.543 in")))
sketch7.addConstraint(Sketcher.Constraint("DistanceY", 3, 3, -1, 1, Q("3.799 in")))
sketch7.addConstraint(Sketcher.Constraint("DistanceX", 0, 3, -1, 1, Q("5.453 in")))
sketch7.addConstraint(Sketcher.Constraint("DistanceX", 1, 3, -1, 1, Q("3.547 in")))
pocket6 = body.newObject("PartDesign::Pocket", "Pocket005")
pocket6.Profile = sketch7
pocket6.Length = Q("0.5 in")
pocket6.Reversed = True

# Sketch on XZ plane
sketch8 = body.newObject("Sketcher::SketchObject", "Sketch007")
sketch8.AttachmentSupport = (doc.getObject("XZ_Plane"), [""])
sketch8.MapMode = "FlatFace"
sketch8.AttachmentOffset = App.Placement(App.Vector(0, 0, -0.5 * 25.4), App.Rotation())
sketch8.addGeometry(Part.Circle(App.Vector(-138.8, -205, 0), App.Vector(0, 0, 1), 1.6), False)
sketch8.addGeometry(Part.Circle(App.Vector(-138.8, -147.1, 0), App.Vector(0, 0, 1), 1.6), False)
sketch8.addGeometry(Part.Circle(App.Vector(-89.8, -205, 0), App.Vector(0, 0, 1), 1.6), False)
sketch8.addGeometry(Part.Circle(App.Vector(-89.8, -147.1, 0), App.Vector(0, 0, 1), 1.6), False)
sketch8.addConstraint(Sketcher.Constraint("Equal", 0, 1))
sketch8.addConstraint(Sketcher.Constraint("Equal", 1, 2))
sketch8.addConstraint(Sketcher.Constraint("Equal", 2, 3))
sketch8.addConstraint(Sketcher.Constraint("Horizontal", 0, 3, 2, 3))
sketch8.addConstraint(Sketcher.Constraint("Horizontal", 1, 3, 3, 3))
sketch8.addConstraint(Sketcher.Constraint("Vertical", 0, 3, 1, 3))
sketch8.addConstraint(Sketcher.Constraint("Vertical", 2, 3, 3, 3))
sketch8.addConstraint(Sketcher.Constraint("Diameter", 0, Q("0.125 in")))
sketch8.addConstraint(Sketcher.Constraint("DistanceY", 0, 3, -1, 1, Q("8.07 in")))
sketch8.addConstraint(Sketcher.Constraint("DistanceY", 1, 3, -1, 1, Q("5.79 in")))
sketch8.addConstraint(Sketcher.Constraint("DistanceX", 0, 3, -1, 1, Q("5.464 in")))
sketch8.addConstraint(Sketcher.Constraint("DistanceX", 2, 3, -1, 1, Q("3.536 in")))
pocket7 = body.newObject("PartDesign::Pocket", "Pocket006")
pocket7.Profile = sketch8
pocket7.Length = Q("0.5 in")
pocket7.Reversed = True

# Sketch on XZ plane
sketch9 = body.newObject("Sketcher::SketchObject", "Sketch008")
sketch9.AttachmentSupport = (doc.getObject("XZ_Plane"), [""])
sketch9.MapMode = "FlatFace"
sketch9.addGeometry(Part.Circle(App.Vector(-108.6, -121.2, 0), App.Vector(0, 0, 1), 1.6), False)
sketch9.addGeometry(Part.Circle(App.Vector(-108.6, -165.4, 0), App.Vector(0, 0, 1), 1.6), False)
sketch9.addGeometry(Part.Circle(App.Vector(-51.5, -165.4, 0), App.Vector(0, 0, 1), 1.6), False)
sketch9.addGeometry(Part.Circle(App.Vector(-51.5, -121.2, 0), App.Vector(0, 0, 1), 1.6), False)
sketch9.addGeometry(Part.Circle(App.Vector(-177.1, -107.4, 0), App.Vector(0, 0, 1), 1.6), False)
sketch9.addGeometry(Part.Circle(App.Vector(-177.1, -63.2, 0), App.Vector(0, 0, 1), 1.6), False)
sketch9.addGeometry(Part.Circle(App.Vector(-120, -63.2, 0), App.Vector(0, 0, 1), 1.6), False)
sketch9.addGeometry(Part.Circle(App.Vector(-120, -107.4, 0), App.Vector(0, 0, 1), 1.6), False)
sketch9.addConstraint(Sketcher.Constraint("Equal", 0, 1))
sketch9.addConstraint(Sketcher.Constraint("Equal", 1, 2))
sketch9.addConstraint(Sketcher.Constraint("Equal", 2, 3))
sketch9.addConstraint(Sketcher.Constraint("Equal", 3, 4))
sketch9.addConstraint(Sketcher.Constraint("Equal", 4, 5))
sketch9.addConstraint(Sketcher.Constraint("Equal", 5, 6))
sketch9.addConstraint(Sketcher.Constraint("Equal", 6, 7))
sketch9.addConstraint(Sketcher.Constraint("Horizontal", 1, 3, 2, 3))
sketch9.addConstraint(Sketcher.Constraint("Horizontal", 5, 3, 6, 3))
sketch9.addConstraint(Sketcher.Constraint("Horizontal", 4, 3, 7, 3))
sketch9.addConstraint(Sketcher.Constraint("Vertical", 0, 3, 1, 3))
sketch9.addConstraint(Sketcher.Constraint("Vertical", 2, 3, 3, 3))
sketch9.addConstraint(Sketcher.Constraint("Vertical", 4, 3, 5, 3))
sketch9.addConstraint(Sketcher.Constraint("Vertical", 6, 3, 7, 3))
sketch9.addConstraint(Sketcher.Constraint("Diameter", 0, Q("0.125 in")))
sketch9.addConstraint(Sketcher.Constraint("DistanceX", 0, 3, -1, 1, Q("4.275 in")))
sketch9.addConstraint(Sketcher.Constraint("DistanceX", 2, 3, -1, 1, Q("2.026 in")))
sketch9.addConstraint(Sketcher.Constraint("DistanceY", 2, 3, 3, 3, Q("1.74 in")))
sketch9.addConstraint(Sketcher.Constraint("DistanceY", 4, 3, 5, 3, Q("1.74 in")))
sketch9.addConstraint(Sketcher.Constraint("DistanceX", 6, 3, 0, 3, Q("0.45 in")))
sketch9.addConstraint(Sketcher.Constraint("DistanceY", 0, 3, -1, 1, Q("4.773 in")))
sketch9.addConstraint(Sketcher.Constraint("DistanceY", 1, 3, -1, 1, Q("6.512 in")))
sketch9.addConstraint(Sketcher.Constraint("DistanceX", 4, 3, -1, 1, Q("6.974 in")))
sketch9.addConstraint(Sketcher.Constraint("DistanceY", 4, 3, -1, 1, Q("4.228 in")))
pocket8 = body.newObject("PartDesign::Pocket", "Pocket007")
pocket8.Profile = sketch9
pocket8.Length = Q("0.5 in")

# Sketch on XZ plane
sketch10 = body.newObject("Sketcher::SketchObject", "Sketch009")
sketch10.AttachmentSupport = (doc.getObject("XZ_Plane"), [""])
sketch10.MapMode = "FlatFace"
add_polygon(sketch10, [(-10, -100), (-48, -100), (-48, -129), (-10, -129)])  # lines 0-3
add_polygon(sketch10, [(-181, -100), (-219, -100), (-219, -129), (-181, -129)])  # lines 4-7
sketch10.addConstraint(Sketcher.Constraint("Horizontal", 0))
sketch10.addConstraint(Sketcher.Constraint("Vertical", 1))
sketch10.addConstraint(Sketcher.Constraint("Horizontal", 2))
sketch10.addConstraint(Sketcher.Constraint("Vertical", 3))
sketch10.addConstraint(Sketcher.Constraint("Horizontal", 4))
sketch10.addConstraint(Sketcher.Constraint("Vertical", 5))
sketch10.addConstraint(Sketcher.Constraint("Horizontal", 6))
sketch10.addConstraint(Sketcher.Constraint("Vertical", 7))
sketch10.addConstraint(Sketcher.Constraint("Horizontal", 3, 2, 4, 2))
sketch10.addConstraint(Sketcher.Constraint("Horizontal", 2, 2, 5, 2))
sketch10.addConstraint(Sketcher.Constraint("DistanceY", 1, 2, 1, 1, Q("1.125 in")))
sketch10.addConstraint(Sketcher.Constraint("DistanceX", 0, 2, 0, 1, Q("1.5 in")))
sketch10.addConstraint(Sketcher.Constraint("DistanceX", 4, 2, 0, 2, Q("6.75 in")))
sketch10.addConstraint(Sketcher.Constraint("DistanceX", 0, 2, -1, 1, Q("1.875 in")))
sketch10.addConstraint(Sketcher.Constraint("DistanceY", 0, 2, -1, 1, Q("3.9375 in")))
sketch10.addConstraint(Sketcher.Constraint("DistanceX", 4, 2, 4, 1, 38.1287))
pocket9 = body.newObject("PartDesign::Pocket", "Pocket008")
pocket9.Profile = sketch10
pocket9.Length = Q("0.375 in")
doc.recompute()

fillet = body.newObject("PartDesign::Fillet", "Fillet")
fillet.Base = (pocket9, edges_at(pocket9, [
    (-142.875, 6.35, 0),
    (-85.725, 6.35, 0),
    (-85.725, 6.35, -228.6),
    (0, 6.35, -34.747),
    (0, 6.35, -193.853),
    (-142.875, 6.35, -228.6),
    (-228.6, 6.35, -193.853),
    (-228.6, 6.35, -34.747),
]))
fillet.Radius = Q("0.125 in")

doc.recompute()
